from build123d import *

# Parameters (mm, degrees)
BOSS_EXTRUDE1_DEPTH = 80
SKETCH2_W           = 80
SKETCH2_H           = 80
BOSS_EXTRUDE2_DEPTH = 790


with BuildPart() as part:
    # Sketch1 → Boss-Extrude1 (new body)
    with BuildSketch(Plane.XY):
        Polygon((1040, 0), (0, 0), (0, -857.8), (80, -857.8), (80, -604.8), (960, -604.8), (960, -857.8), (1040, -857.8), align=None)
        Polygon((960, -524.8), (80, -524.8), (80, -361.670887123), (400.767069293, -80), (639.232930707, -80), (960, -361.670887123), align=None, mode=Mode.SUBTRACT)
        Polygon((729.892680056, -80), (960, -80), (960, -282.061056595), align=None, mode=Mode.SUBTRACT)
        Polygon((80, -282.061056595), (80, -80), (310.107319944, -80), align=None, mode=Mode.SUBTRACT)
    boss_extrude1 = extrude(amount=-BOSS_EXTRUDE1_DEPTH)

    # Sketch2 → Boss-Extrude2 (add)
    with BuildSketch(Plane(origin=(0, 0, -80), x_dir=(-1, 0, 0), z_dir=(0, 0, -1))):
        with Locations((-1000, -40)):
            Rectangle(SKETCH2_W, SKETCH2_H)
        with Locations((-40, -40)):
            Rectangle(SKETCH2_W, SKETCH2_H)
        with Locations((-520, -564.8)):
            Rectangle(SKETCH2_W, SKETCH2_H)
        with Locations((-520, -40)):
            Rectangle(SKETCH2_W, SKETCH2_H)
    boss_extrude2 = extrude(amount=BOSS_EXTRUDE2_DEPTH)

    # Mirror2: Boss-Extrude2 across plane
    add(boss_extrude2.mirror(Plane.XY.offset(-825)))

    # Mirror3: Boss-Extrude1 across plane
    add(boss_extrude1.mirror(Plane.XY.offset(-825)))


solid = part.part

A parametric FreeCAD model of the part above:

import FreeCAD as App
import Part
import Sketcher

doc = App.newDocument("Part")
body = doc.addObject("PartDesign::Body", "Body")

sketch1 = body.newObject("Sketcher::SketchObject", "Sketch")
sketch1.AttachmentSupport = (doc.getObject("XY_Plane"), [""])
sketch1.MapMode = "FlatFace"
sketch1.addGeometry(Part.LineSegment(App.Vector(1040, 0, 0), App.Vector(0, 0, 0)), False)
sketch1.addGeometry(Part.LineSegment(App.Vector(0, 0, 0), App.Vector(0, -857.8, 0)), False)
sketch1.addGeometry(Part.LineSegment(App.Vector(0, -857.8, 0), App.Vector(80, -857.8, 0)), False)
sketch1.addGeometry(Part.LineSegment(App.Vector(80, -857.8, 0), App.Vector(80, -604.8, 0)), False)
sketch1.addGeometry(Part.LineSegment(App.Vector(80, -604.8, 0), App.Vector(960, -604.8, 0)), False)
sketch1.addGeometry(Part.LineSegment(App.Vector(960, -604.8, 0), App.Vector(960, -857.8, 0)), False)
sketch1.addGeometry(Part.LineSegment(App.Vector(960, -857.8, 0), App.Vector(1040, -857.8, 0)), False)
sketch1.addGeometry(Part.LineSegment(App.Vector(1040, -857.8, 0), App.Vector(1040, 0, 0)), False)
sketch1.addGeometry(Part.LineSegment(App.Vector(310.10732, -80, 0), App.Vector(80, -282.061057, 0)), False)
sketch1.addGeometry(Part.LineSegment(App.Vector(80, -282.061057, 0), App.Vector(80, -80, 0)), False)
sketch1.addGeometry(Part.LineSegment(App.Vector(80, -80, 0), App.Vector(310.10732, -80, 0)), False)
sketch1.addGeometry(Part.LineSegment(App.Vector(960, -361.670887, 0), App.Vector(960, -524.8, 0)), False)
sketch1.addGeometry(Part.LineSegment(App.Vector(960, -524.8, 0), App.Vector(80, -524.8, 0)), False)
sketch1.addGeometry(Part.LineSegment(App.Vector(80, -524.8, 0), App.Vector(80, -361.670887, 0)), False)
sketch1.addGeometry(Part.LineSegment(App.Vector(80, -361.670887, 0), App.Vector(400.767069, -80, 0)), False)
sketch1.addGeometry(Part.LineSegment(App.Vector(400.767069, -80, 0), App.Vector(639.232931, -80, 0)), False)
sketch1.addGeometry(Part.LineSegment(App.Vector(639.232931, -80, 0), App.Vector(960, -361.670887, 0)), False)
sketch1.addGeometry(Part.LineSegment(App.Vector(960, -282.061057, 0), App.Vector(729.89268, -80, 0)), False)
sketch1.addGeometry(Part.LineSegment(App.Vector(729.89268, -80, 0), App.Vector(960, -80, 0)), False)
sketch1.addGeometry(Part.LineSegment(App.Vector(960, -80, 0), App.Vector(960, -282.061057, 0)), False)
sketch1.addConstraint(Sketcher.Constraint("Coincident", 0, 2, 1, 1))
sketch1.addConstraint(Sketcher.Constraint("Coincident", 1, 2, 2, 1))
sketch1.addConstraint(Sketcher.Constraint("Coincident", 2, 2, 3, 1))
sketch1.addConstraint(Sketcher.Constraint("Coincident", 3, 2, 4, 1))
sketch1.addConstraint(Sketcher.Constraint("Coincident", 4, 2, 5, 1))
sketch1.addConstraint(Sketcher.Constraint("Coincident", 5, 2, 6, 1))
sketch1.addConstraint(Sketcher.Constraint("Coincident", 6, 2, 7, 1))
sketch1.addConstraint(Sketcher.Constraint("Coincident", 7, 2, 0, 1))
sketch1.addConstraint(Sketcher.Constraint("Coincident", 8, 2, 9, 1))
sketch1.addConstraint(Sketcher.Constraint("Coincident", 9, 2, 10, 1))
sketch1.addConstraint(Sketcher.Constraint("Coincident", 10, 2, 8, 1))
sketch1.addConstraint(Sketcher.Constraint("Coincident", 11, 2, 12, 1))
sketch1.addConstraint(Sketcher.Constraint("Coincident", 12, 2, 13, 1))
sketch1.addConstraint(Sketcher.Constraint("Coincident", 13, 2, 14, 1))
sketch1.addConstraint(Sketcher.Constraint("Coincident", 14, 2, 15, 1))
sketch1.addConstraint(Sketcher.Constraint("Coincident", 15, 2, 16, 1))
sketch1.addConstraint(Sketcher.Constraint("Coincident", 16, 2, 11, 1))
sketch1.addConstraint(Sketcher.Constraint("Coincident", 17, 2, 18, 1))
sketch1.addConstraint(Sketcher.Constraint("Coincident", 18, 2, 19, 1))
sketch1.addConstraint(Sketcher.Constraint("Coincident", 19, 2, 17, 1))
sketch1.addConstraint(Sketcher.Constraint("Horizontal", 0))
sketch1.addConstraint(Sketcher.Constraint("Vertical", 1))
sketch1.addConstraint(Sketcher.Constraint("Horizontal", 2))
sketch1.addConstraint(Sketcher.Constraint("Vertical", 3))
sketch1.addConstraint(Sketcher.Constraint("Horizontal", 4))
sketch1.addConstraint(Sketcher.Constraint("Vertical", 5))
sketch1.addConstraint(Sketcher.Constraint("Horizontal", 6))
sketch1.addConstraint(Sketcher.Constraint("Vertical", 7))
sketch1.addConstraint(Sketcher.Constraint("Vertical", 9))
sketch1.addConstraint(Sketcher.Constraint("Horizontal", 10))
sketch1.addConstraint(Sketcher.Constraint("Vertical", 11))
sketch1.addConstraint(Sketcher.Constraint("Horizontal", 12))
sketch1.addConstraint(Sketcher.Constraint("Vertical", 13))
sketch1.addConstraint(Sketcher.Constraint("Horizontal", 15))
sketch1.addConstraint(Sketcher.Constraint("Horizontal", 18))
sketch1.addConstraint(Sketcher.Constraint("Vertical", 19))
sketch1.addConstraint(Sketcher.Constraint("Coincident", 0, 2, -1, 1))
sketch1.addConstraint(Sketcher.Constraint("Parallel", 8, 14))
sketch1.addConstraint(Sketcher.Constraint("Parallel", 16, 17))
sketch1.addConstraint(Sketcher.Constraint("Horizontal", 2, 2, 5, 2))
sketch1.addConstraint(Sketcher.Constraint("Horizontal", 10, 2, 14, 2))
sketch1.addConstraint(Sketcher.Constraint("Horizontal", 13, 2, 16, 2))
sketch1.addConstraint(Sketcher.Constraint("Horizontal", 15, 2, 17, 2))
sketch1.addConstraint(Sketcher.Constraint("Horizontal", 8, 2, 19, 2))
sketch1.addConstraint(Sketcher.Constraint("Vertical", 3, 2, 8, 2))
sketch1.addConstraint(Sketcher.Constraint("Vertical", 5, 2, 11, 2))
sketch1.addConstraint(Sketcher.Constraint("Vertical", 9, 2, 12, 2))
sketch1.addConstraint(Sketcher.Constraint("Vertical", 16, 2, 18, 2))
sketch1.addConstraint(Sketcher.Constraint("Equal", 2, 6))
sketch1.addConstraint(Sketcher.Constraint("Equal", 10, 18))
sketch1.addConstraint(Sketcher.Constraint("DistanceX", 0, 2, 0, 1, 1040.0))
sketch1.addConstraint(Sketcher.Constraint("DistanceX", 2, 1, 2, 2, 80.0))
sketch1.addConstraint(Sketcher.Constraint("DistanceY", 3, 1, 3, 2, 253.0))
sketch1.addConstraint(Sketcher.Constraint("DistanceY", 1, 2, 1, 1, 857.8))
sketch1.addConstraint(Sketcher.Constraint("DistanceY", 9, 2, -1, 1, 80.0))
sketch1.addConstraint(Sketcher.Constraint("DistanceY", 4, 2, 11, 2, 80.0))
sketch1.addConstraint(Sketcher.Constraint("DistanceX", 10, 1, 10, 2, 230.10732))
sketch1.addConstraint(Sketcher.Constraint("DistanceX", 15, 1, 15, 2, 238.465861))
sketch1.addConstraint(Sketcher.Constraint("Distance", 8, 306.232019))
pad1 = body.newObject("PartDesign::Pad", "Pad")
pad1.Profile = sketch1
pad1.Length = 80
pad1.Reversed = True

sketch2 = body.newObject("Sketcher::SketchObject", "Sketch001")
sketch2.AttachmentSupport = (doc.getObject("XY_Plane"), [""])
sketch2.MapMode = "FlatFace"
sketch2.AttachmentOffset = App.Placement(App.Vector(0, 0, -80), App.Rotation())
sketch2.addGeometry(Part.LineSegment(App.Vector(1040, 0, 0), App.Vector(1040, -80, 0)), False)
sketch2.addGeometry(Part.LineSegment(App.Vector(1040, -80, 0), App.Vector(960, -80, 0)), False)
sketch2.addGeometry(Part.LineSegment(App.Vector(960, -80, 0), App.Vector(960, 0, 0)), False)
sketch2.addGeometry(Part.LineSegment(App.Vector(960, 0, 0), App.Vector(1040, 0, 0)), False)
sketch2.addGeometry(Part.LineSegment(App.Vector(80, 0, 0), App.Vector(80, -80, 0)), False)
sketch2.addGeometry(Part.LineSegment(App.Vector(80, -80, 0), App.Vector(0, -80, 0)), False)
sketch2.addGeometry(Part.LineSegment(App.Vector(0, -80, 0), App.Vector(0, 0, 0)), False)
sketch2.addGeometry(Part.LineSegment(App.Vector(0, 0, 0), App.Vector(80, 0, 0)), False)
sketch2.addGeometry(Part.LineSegment(App.Vector(560, -524.8, 0), App.Vector(560, -604.8, 0)), False)
sketch2.addGeometry(Part.LineSegment(App.Vector(560, -604.8, 0), App.Vector(480, -604.8, 0)), False)
sketch2.addGeometry(Part.LineSegment(App.Vector(480, -604.8, 0), App.Vector(480, -524.8, 0)), False)
sketch2.addGeometry(Part.LineSegment(App.Vector(480, -524.8, 0), App.Vector(560, -524.8, 0)), False)
sketch2.addGeometry(Part.LineSegment(App.Vector(560, 0, 0), App.Vector(560, -80, 0)), False)
sketch2.addGeometry(Part.LineSegment(App.Vector(560, -80, 0), App.Vector(480, -80, 0)), False)
sketch2.addGeometry(Part.LineSegment(App.Vector(480, -80, 0), App.Vector(480, 0, 0)), False)
sketch2.addGeometry(Part.LineSegment(App.Vector(480, 0, 0), App.Vector(560, 0, 0)), False)
sketch2.addConstraint(Sketcher.Constraint("Coincident", 0, 2, 1, 1))
sketch2.addConstraint(Sketcher.Constraint("Coincident", 1, 2, 2, 1))
sketch2.addConstraint(Sketcher.Constraint("Coincident", 2, 2, 3, 1))
sketch2.addConstraint(Sketcher.Constraint("Coincident", 3, 2, 0, 1))
sketch2.addConstraint(Sketcher.Constraint("Coincident", 4, 2, 5, 1))
sketch2.addConstraint(Sketcher.Constraint("Coincident", 5, 2, 6, 1))
sketch2.addConstraint(Sketcher.Constraint("Coincident", 6, 2, 7, 1))
sketch2.addConstraint(Sketcher.Constraint("Coincident", 7, 2, 4, 1))
sketch2.addConstraint(Sketcher.Constraint("Coincident", 8, 2, 9, 1))
sketch2.addConstraint(Sketcher.Constraint("Coincident", 9, 2, 10, 1))
sketch2.addConstraint(Sketcher.Constraint("Coincident", 10, 2, 11, 1))
sketch2.addConstraint(Sketcher.Constraint("Coincident", 11, 2, 8, 1))
sketch2.addConstraint(Sketcher.Constraint("Coincident", 12, 2, 13, 1))
sketch2.addConstraint(Sketcher.Constraint("Coincident", 13, 2, 14, 1))
sketch2.addConstraint(Sketcher.Constraint("Coincident", 14, 2, 15, 1))
sketch2.addConstraint(Sketcher.Constraint("Coincident", 15, 2, 12, 1))
sketch2.addConstraint(Sketcher.Constraint("Vertical", 0))
sketch2.addConstraint(Sketcher.Constraint("Horizontal", 1))
sketch2.addConstraint(Sketcher.Constraint("Vertical", 2))
sketch2.addConstraint(Sketcher.Constraint("Horizontal", 3))
sketch2.addConstraint(Sketcher.Constraint("Vertical", 4))
sketch2.addConstraint(Sketcher.Constraint("Horizontal", 5))
sketch2.addConstraint(Sketcher.Constraint("Vertical", 6))
sketch2.addConstraint(Sketcher.Constraint("Horizontal", 7))
sketch2.addConstraint(Sketcher.Constraint("Vertical", 8))
sketch2.addConstraint(Sketcher.Constraint("Horizontal", 9))
sketch2.addConstraint(Sketcher.Constraint("Vertical", 10))
sketch2.addConstraint(Sketcher.Constraint("Horizontal", 11))
sketch2.addConstraint(Sketcher.Constraint("Vertical", 12))
sketch2.addConstraint(Sketcher.Constraint("Horizontal", 13))
sketch2.addConstraint(Sketcher.Constraint("Vertical", 14))
sketch2.addConstraint(Sketcher.Constraint("Horizontal", 15))
sketch2.addConstraint(Sketcher.Constraint("Coincident", 6, 2, -1, 1))
sketch2.addConstraint(Sketcher.Constraint("PointOnObject", 2, 2, -1))
sketch2.addConstraint(Sketcher.Constraint("PointOnObject", 14, 2, -1))
sketch2.addConstraint(Sketcher.Constraint("Horizontal", 1, 2, 4, 2))
sketch2.addConstraint(Sketcher.Constraint("Horizontal", 5, 2, 12, 2))
sketch2.addConstraint(Sketcher.Constraint("Vertical", 11, 2, 12, 2))
sketch2.addConstraint(Sketcher.Constraint("Vertical", 10, 2, 13, 2))
sketch2.addConstraint(Sketcher.Constraint("Equal", 3, 5))
sketch2.addConstraint(Sketcher.Constraint("Equal", 7, 9))
sketch2.addConstraint(Sketcher.Constraint("Equal", 15, 0))
sketch2.addConstraint(Sketcher.Constraint("Equal", 6, 8))
sketch2.addConstraint(Sketcher.Constraint("DistanceX", 1, 2, 1, 1, 80.0))
sketch2.addConstraint(Sketcher.Constraint("DistanceX", -1, 1, 0, 2, 1040.0))
sketch2.addConstraint(Sketcher.Constraint("DistanceX", -1, 1, 8, 2, 560.0))
sketch2.addConstraint(Sketcher.Constraint("DistanceY", 8, 2, -1, 1, 604.8))
pad2 = body.newObject("PartDesign::Pad", "Pad001")
pad2.Profile = sketch2
pad2.Length = 790
pad2.Reversed = True
doc.recompute()

datumplane = body.newObject("PartDesign::Plane", "DatumPlane")
datumplane.AttachmentSupport = (doc.getObject("XY_Plane"), [""])
datumplane.MapMode = "FlatFace"
datumplane.AttachmentOffset = App.Placement(App.Vector(0, 0, -825), App.Rotation())
mirrored = body.newObject("PartDesign::Mirrored", "Mirrored")
mirrored.Originals = [pad2]
mirrored.MirrorPlane = (datumplane, [""])
body.Tip = mirrored
doc.recompute()

datumplane2 = body.newObject("PartDesign::Plane", "DatumPlane001")
datumplane2.AttachmentSupport = (doc.getObject("XY_Plane"), [""])
datumplane2.MapMode = "FlatFace"
datumplane2.AttachmentOffset = App.Placement(App.Vector(0, 0, -825), App.Rotation())
mirrored2 = body.newObject("PartDesign::Mirrored", "Mirrored001")
mirrored2.Originals = [pad1]
mirrored2.MirrorPlane = (datumplane2, [""])
body.Tip = mirrored2

doc.recompute()
